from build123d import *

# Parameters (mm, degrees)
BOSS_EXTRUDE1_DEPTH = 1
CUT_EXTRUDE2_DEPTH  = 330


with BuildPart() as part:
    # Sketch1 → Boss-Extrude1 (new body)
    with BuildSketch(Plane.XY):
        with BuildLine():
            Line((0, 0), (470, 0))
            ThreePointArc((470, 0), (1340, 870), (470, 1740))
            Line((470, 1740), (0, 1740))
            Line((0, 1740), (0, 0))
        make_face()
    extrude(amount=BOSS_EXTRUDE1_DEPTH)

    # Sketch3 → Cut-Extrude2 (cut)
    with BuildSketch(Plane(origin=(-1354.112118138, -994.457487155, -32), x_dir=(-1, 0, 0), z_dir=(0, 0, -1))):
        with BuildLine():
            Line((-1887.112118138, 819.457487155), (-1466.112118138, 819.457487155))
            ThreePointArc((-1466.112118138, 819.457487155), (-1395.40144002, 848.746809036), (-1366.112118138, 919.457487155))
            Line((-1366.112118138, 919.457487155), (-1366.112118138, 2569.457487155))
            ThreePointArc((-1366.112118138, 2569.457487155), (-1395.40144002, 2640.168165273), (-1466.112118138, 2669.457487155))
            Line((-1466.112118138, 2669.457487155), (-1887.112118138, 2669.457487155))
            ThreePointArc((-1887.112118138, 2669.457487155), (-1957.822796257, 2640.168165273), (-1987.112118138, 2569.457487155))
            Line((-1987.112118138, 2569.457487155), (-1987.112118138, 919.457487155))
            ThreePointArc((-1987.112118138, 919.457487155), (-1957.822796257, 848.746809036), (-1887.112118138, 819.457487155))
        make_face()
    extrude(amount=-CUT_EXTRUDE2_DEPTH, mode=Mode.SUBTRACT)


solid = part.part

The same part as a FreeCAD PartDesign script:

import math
import FreeCAD as App
import Part
import Sketcher
Q = App.Units.Quantity

doc = App.newDocument("Part")
body = doc.addObject("PartDesign::Body", "Body")

sketch1 = body.newObject("Sketcher::SketchObject", "Sketch")
sketch1.AttachmentSupport = (doc.getObject("XY_Plane"), [""])
sketch1.MapMode = "FlatFace"
sketch1.addGeometry([
    Part.LineSegment(App.Vector(0, 0, 0), App.Vector(470, 0, 0)),
    Part.ArcOfCircle(Part.Circle(App.Vector(470, 870, 0), App.Vector(0, 0, 1), 870), math.radians(-90), math.radians(90)),
    Part.LineSegment(App.Vector(470, 1740, 0), App.Vector(0, 1740, 0)),
    Part.LineSegment(App.Vector(0, 1740, 0), App.Vector(0, 0, 0)),
], False)
sketch1.addConstraint([
    Sketcher.Constraint("Tangent", 0, 2, 1, 1),
    Sketcher.Constraint("Tangent", 1, 2, 2, 1),
    Sketcher.Constraint("Coincident", 2, 2, 3, 1),
    Sketcher.Constraint("Coincident", 3, 2, 0, 1),
    Sketcher.Constraint("Horizontal", 0),
    Sketcher.Constraint("Horizontal", 2),
    Sketcher.Constraint("Vertical", 3),
    Sketcher.Constraint("Coincident", 3, 2, -1, 1),
    Sketcher.Constraint("Radius", 1, Q("870 mm")),
    Sketcher.Constraint("DistanceX", 0, 1, 0, 2, Q("470 mm")),
])
pad1 = body.newObject("PartDesign::Pad", "Pad")
pad1.Profile = sketch1
pad1.Length = 1

sketch2 = body.newObject("Sketcher::SketchObject", "Sketch001")
sketch2.AttachmentSupport = (doc.getObject("XY_Plane"), [""])
sketch2.MapMode = "FlatFace"
sketch2.AttachmentOffset = App.Placement(App.Vector(0, 0, -32), App.Rotation())
sketch2.addGeometry([
    Part.LineSegment(App.Vector(533, -175, 0), App.Vector(112, -175, 0)),
    Part.ArcOfCircle(Part.Circle(App.Vector(112, -75, 0), App.Vector(0, 0, 1), 100), math.radians(-180), math.radians(-90)),
    Part.LineSegment(App.Vector(12, -75, 0), App.Vector(12, 1575, 0)),
    Part.ArcOfCircle(Part.Circle(App.Vector(112, 1575, 0), App.Vector(0, 0, 1), 100), math.radians(90), math.radians(180)),
    Part.LineSegment(App.Vector(112, 1675, 0), App.Vector(533, 1675, 0)),
    Part.ArcOfCircle(Part.Circle(App.Vector(533, 1575, 0), App.Vector(0, 0, 1), 100), math.radians(0), math.radians(90)),
    Part.LineSegment(App.Vector(633, 1575, 0), App.Vector(633, -75, 0)),
    Part.ArcOfCircle(Part.Circle(App.Vector(533, -75, 0), App.Vector(0, 0, 1), 100), math.radians(-90), math.radians(0)),
], False)
sketch2.addConstraint([
    Sketcher.Constraint("Tangent", 0, 2, 1, 2),
    Sketcher.Constraint("Tangent", 1, 1, 2, 1),
    Sketcher.Constraint("Tangent", 2, 2, 3, 2),
    Sketcher.Constraint("Tangent", 3, 1, 4, 1),
    Sketcher.Constraint("Tangent", 4, 2, 5, 2),
    Sketcher.Constraint("Tangent", 5, 1, 6, 1),
    Sketcher.Constraint("Tangent", 6, 2, 7, 2),
    Sketcher.Constraint("Tangent", 7, 1, 0, 1),
    Sketcher.Constraint("Horizontal", 0),
    Sketcher.Constraint("Vertical", 2),
    Sketcher.Constraint("Horizontal", 4),
    Sketcher.Constraint("Vertical", 6),
    Sketcher.Constraint("Equal", 1, 3),
    Sketcher.Constraint("Equal", 3, 5),
    Sketcher.Constraint("Equal", 5, 7),
    Sketcher.Constraint("Radius", 1, Q("100 mm")),
    Sketcher.Constraint("DistanceX", 0, 2, 0, 1, Q("421 mm")),
    Sketcher.Constraint("DistanceY", 2, 1, 2, 2, Q("1650 mm")),
    Sketcher.Constraint("DistanceX", -1, 1, 1, 3, Q("112 mm")),
    Sketcher.Constraint("DistanceY", 1, 3, -1, 1, Q("75 mm")),
])
pocket1 = body.newObject("PartDesign::Pocket", "Pocket")
pocket1.Profile = sketch2
pocket1.Length = 330
pocket1.Reversed = True

doc.recompute()
